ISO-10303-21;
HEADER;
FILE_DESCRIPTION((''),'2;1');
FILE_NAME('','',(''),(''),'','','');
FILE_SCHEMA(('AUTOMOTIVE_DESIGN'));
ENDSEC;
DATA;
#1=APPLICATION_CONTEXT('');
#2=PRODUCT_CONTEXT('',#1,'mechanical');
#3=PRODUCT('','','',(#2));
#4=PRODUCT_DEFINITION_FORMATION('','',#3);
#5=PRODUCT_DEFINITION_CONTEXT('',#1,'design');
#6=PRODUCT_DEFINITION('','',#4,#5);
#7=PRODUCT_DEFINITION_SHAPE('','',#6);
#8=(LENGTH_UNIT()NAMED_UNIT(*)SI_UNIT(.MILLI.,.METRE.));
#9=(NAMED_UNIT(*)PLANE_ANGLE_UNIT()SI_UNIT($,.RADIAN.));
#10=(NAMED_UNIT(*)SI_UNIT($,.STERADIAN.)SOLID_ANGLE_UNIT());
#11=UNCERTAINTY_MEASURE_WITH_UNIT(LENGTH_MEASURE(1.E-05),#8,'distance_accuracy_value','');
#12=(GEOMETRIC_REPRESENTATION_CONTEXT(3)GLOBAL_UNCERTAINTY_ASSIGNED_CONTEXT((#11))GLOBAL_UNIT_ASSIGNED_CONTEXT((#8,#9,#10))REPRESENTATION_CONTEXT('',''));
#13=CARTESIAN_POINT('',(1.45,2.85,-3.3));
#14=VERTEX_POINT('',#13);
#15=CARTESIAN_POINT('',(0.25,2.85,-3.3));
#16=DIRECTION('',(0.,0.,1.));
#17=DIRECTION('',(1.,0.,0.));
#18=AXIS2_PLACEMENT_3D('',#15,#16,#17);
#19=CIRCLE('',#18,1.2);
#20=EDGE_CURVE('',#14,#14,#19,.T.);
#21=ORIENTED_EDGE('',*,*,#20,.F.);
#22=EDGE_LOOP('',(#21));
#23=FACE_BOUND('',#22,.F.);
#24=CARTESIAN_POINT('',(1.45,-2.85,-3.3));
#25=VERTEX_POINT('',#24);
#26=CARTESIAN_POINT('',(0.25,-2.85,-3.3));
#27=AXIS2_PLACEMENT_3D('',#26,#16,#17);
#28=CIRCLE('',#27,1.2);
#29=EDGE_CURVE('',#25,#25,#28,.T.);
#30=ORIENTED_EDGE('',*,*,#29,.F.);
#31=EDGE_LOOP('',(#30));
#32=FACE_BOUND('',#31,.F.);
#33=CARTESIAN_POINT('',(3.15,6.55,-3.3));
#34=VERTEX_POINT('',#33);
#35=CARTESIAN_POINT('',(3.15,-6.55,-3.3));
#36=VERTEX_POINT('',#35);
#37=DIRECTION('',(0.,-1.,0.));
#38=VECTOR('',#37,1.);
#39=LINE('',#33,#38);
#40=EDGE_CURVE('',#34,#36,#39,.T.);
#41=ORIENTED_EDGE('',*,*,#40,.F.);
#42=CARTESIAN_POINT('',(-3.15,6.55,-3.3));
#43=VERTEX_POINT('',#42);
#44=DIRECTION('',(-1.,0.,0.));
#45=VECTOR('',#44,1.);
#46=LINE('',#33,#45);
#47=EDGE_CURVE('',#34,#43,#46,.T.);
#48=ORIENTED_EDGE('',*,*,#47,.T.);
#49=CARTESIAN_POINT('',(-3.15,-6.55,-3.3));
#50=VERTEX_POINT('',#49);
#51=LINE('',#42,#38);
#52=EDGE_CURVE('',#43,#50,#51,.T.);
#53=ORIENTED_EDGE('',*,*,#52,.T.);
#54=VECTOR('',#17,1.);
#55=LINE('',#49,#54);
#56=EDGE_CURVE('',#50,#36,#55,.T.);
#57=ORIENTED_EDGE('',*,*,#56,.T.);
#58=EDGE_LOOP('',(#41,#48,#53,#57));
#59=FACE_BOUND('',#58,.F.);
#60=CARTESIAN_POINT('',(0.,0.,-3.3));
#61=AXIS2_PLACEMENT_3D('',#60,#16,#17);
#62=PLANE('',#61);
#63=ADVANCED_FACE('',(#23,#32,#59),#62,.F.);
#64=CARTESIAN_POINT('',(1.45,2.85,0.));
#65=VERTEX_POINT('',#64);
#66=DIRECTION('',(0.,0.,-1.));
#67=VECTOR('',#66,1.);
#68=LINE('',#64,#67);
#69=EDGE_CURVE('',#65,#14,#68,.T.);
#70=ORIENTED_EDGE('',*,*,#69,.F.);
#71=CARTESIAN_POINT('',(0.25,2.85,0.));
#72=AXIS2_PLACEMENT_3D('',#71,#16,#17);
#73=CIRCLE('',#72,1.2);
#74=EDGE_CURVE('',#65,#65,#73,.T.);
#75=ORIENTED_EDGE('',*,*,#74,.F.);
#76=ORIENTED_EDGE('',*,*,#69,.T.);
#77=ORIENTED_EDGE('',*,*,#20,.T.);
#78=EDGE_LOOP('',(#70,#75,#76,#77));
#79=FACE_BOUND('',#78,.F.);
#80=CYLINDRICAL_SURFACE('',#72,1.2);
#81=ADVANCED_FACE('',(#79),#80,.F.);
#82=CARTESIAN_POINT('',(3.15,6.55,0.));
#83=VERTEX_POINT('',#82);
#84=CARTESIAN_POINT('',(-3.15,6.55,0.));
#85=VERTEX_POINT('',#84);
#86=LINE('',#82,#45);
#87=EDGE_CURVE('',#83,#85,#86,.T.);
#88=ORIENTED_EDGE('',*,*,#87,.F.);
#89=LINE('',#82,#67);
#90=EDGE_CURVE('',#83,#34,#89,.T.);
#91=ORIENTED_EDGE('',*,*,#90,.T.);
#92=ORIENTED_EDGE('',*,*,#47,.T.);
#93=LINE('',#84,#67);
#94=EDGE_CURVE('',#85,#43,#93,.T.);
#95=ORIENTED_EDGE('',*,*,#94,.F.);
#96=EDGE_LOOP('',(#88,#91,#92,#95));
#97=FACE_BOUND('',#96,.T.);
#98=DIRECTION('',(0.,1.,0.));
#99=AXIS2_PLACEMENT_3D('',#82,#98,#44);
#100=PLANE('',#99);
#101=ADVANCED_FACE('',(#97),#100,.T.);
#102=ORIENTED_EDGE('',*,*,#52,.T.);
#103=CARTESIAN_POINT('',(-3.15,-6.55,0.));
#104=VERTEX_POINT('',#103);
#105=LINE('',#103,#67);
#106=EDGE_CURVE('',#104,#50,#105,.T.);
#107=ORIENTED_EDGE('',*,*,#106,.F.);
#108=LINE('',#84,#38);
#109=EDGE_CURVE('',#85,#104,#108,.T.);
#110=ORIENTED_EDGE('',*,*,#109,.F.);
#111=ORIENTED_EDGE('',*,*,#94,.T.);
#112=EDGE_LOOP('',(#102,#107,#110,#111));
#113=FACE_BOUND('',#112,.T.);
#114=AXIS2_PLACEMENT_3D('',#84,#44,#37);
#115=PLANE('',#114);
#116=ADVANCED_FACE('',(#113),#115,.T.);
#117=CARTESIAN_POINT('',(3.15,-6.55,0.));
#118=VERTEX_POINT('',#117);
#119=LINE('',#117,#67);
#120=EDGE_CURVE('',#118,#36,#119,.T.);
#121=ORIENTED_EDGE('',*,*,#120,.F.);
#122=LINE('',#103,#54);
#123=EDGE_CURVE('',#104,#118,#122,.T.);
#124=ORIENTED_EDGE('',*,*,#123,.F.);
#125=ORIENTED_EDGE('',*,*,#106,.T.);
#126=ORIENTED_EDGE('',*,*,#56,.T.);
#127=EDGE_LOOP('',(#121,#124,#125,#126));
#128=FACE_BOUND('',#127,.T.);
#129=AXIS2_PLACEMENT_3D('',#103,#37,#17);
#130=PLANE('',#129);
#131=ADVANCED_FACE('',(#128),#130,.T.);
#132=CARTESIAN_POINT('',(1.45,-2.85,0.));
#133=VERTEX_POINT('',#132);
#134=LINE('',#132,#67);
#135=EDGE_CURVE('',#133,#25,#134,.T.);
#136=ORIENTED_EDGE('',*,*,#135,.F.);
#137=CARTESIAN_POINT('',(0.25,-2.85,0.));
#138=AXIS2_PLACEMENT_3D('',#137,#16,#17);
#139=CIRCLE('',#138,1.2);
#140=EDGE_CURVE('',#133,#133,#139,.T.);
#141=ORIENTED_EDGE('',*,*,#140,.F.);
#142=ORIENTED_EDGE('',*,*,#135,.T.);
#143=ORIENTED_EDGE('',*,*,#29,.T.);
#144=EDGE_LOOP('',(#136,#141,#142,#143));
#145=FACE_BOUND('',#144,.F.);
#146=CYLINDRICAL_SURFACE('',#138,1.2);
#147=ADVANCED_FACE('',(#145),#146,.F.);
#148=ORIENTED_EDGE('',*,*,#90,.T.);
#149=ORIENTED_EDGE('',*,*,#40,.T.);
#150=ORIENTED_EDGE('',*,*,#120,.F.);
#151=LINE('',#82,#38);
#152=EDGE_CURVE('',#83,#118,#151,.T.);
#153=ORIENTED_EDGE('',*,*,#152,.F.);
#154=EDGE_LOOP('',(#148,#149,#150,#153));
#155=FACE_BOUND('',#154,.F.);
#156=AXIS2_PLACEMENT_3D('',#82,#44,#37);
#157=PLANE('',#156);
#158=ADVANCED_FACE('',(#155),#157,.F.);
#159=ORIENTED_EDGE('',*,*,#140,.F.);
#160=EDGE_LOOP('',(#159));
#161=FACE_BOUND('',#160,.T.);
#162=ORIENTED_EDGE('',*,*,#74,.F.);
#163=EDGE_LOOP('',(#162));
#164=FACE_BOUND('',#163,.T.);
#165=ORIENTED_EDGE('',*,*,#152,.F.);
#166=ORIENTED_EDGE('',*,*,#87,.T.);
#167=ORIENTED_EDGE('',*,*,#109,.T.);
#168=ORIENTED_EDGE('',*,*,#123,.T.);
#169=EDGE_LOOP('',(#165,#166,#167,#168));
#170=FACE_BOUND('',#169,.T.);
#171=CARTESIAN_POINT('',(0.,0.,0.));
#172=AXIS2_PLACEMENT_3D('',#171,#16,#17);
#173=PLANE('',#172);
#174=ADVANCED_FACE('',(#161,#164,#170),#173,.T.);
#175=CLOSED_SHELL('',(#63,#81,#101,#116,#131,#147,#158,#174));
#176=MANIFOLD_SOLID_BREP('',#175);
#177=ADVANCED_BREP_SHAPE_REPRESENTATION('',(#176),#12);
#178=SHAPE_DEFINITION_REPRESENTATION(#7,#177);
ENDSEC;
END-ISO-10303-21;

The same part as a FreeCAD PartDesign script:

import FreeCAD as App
import Part
import Sketcher
from FreeCAD import Vector
Q = App.Units.Quantity

doc = App.newDocument("Part")
body = doc.addObject("PartDesign::Body", "Body")

# Sketch on XY plane
sketch1 = body.newObject("Sketcher::SketchObject", "Sketch")
sketch1.AttachmentSupport = (doc.getObject("XY_Plane"), [""])
sketch1.MapMode = "FlatFace"
sketch1.addGeometry([
    Part.LineSegment(Vector(-3.15, 6.55, 0), Vector(-3.15, -6.55, 0)),  # 0
    Part.LineSegment(Vector(-3.15, -6.55, 0), Vector(3.15, -6.55, 0)),  # 1
    Part.LineSegment(Vector(3.15, -6.55, 0), Vector(3.15, 6.55, 0)),  # 2
    Part.LineSegment(Vector(3.15, 6.55, 0), Vector(-3.15, 6.55, 0)),  # 3
    Part.Circle(Vector(0.25, -2.85, 0), Vector(0, 0, 1), 1.2),  # 4
    Part.Circle(Vector(0.25, 2.85, 0), Vector(0, 0, 1), 1.2),  # 5
], False)
sketch1.addConstraint([
    Sketcher.Constraint("Coincident", 0, 2, 1, 1),
    Sketcher.Constraint("Coincident", 1, 2, 2, 1),
    Sketcher.Constraint("Coincident", 2, 2, 3, 1),
    Sketcher.Constraint("Coincident", 3, 2, 0, 1),
    Sketcher.Constraint("Vertical", 0),
    Sketcher.Constraint("Horizontal", 1),
    Sketcher.Constraint("Vertical", 2),
    Sketcher.Constraint("Horizontal", 3),
    Sketcher.Constraint("Equal", 4, 5),
    Sketcher.Constraint("Symmetric", 0, 2, 2, 2, -1, 1),
    Sketcher.Constraint("Symmetric", 4, 3, 5, 3, -1),
    Sketcher.Constraint("Diameter", 4, Q("2.4 mm")),
    Sketcher.Constraint("DistanceX", 1, 1, 1, 2, Q("6.3 mm")),
    Sketcher.Constraint("DistanceY", 0, 2, 0, 1, Q("13.1 mm")),
    Sketcher.Constraint("DistanceY", 4, 3, 5, 3, Q("5.7 mm")),
    Sketcher.Constraint("DistanceX", 0, 2, 4, 3, Q("3.4 mm")),
])
pad1 = body.newObject("PartDesign::Pad", "Pad")
pad1.Profile = sketch1
pad1.Length = 3.3
pad1.Reversed = True

doc.recompute()
